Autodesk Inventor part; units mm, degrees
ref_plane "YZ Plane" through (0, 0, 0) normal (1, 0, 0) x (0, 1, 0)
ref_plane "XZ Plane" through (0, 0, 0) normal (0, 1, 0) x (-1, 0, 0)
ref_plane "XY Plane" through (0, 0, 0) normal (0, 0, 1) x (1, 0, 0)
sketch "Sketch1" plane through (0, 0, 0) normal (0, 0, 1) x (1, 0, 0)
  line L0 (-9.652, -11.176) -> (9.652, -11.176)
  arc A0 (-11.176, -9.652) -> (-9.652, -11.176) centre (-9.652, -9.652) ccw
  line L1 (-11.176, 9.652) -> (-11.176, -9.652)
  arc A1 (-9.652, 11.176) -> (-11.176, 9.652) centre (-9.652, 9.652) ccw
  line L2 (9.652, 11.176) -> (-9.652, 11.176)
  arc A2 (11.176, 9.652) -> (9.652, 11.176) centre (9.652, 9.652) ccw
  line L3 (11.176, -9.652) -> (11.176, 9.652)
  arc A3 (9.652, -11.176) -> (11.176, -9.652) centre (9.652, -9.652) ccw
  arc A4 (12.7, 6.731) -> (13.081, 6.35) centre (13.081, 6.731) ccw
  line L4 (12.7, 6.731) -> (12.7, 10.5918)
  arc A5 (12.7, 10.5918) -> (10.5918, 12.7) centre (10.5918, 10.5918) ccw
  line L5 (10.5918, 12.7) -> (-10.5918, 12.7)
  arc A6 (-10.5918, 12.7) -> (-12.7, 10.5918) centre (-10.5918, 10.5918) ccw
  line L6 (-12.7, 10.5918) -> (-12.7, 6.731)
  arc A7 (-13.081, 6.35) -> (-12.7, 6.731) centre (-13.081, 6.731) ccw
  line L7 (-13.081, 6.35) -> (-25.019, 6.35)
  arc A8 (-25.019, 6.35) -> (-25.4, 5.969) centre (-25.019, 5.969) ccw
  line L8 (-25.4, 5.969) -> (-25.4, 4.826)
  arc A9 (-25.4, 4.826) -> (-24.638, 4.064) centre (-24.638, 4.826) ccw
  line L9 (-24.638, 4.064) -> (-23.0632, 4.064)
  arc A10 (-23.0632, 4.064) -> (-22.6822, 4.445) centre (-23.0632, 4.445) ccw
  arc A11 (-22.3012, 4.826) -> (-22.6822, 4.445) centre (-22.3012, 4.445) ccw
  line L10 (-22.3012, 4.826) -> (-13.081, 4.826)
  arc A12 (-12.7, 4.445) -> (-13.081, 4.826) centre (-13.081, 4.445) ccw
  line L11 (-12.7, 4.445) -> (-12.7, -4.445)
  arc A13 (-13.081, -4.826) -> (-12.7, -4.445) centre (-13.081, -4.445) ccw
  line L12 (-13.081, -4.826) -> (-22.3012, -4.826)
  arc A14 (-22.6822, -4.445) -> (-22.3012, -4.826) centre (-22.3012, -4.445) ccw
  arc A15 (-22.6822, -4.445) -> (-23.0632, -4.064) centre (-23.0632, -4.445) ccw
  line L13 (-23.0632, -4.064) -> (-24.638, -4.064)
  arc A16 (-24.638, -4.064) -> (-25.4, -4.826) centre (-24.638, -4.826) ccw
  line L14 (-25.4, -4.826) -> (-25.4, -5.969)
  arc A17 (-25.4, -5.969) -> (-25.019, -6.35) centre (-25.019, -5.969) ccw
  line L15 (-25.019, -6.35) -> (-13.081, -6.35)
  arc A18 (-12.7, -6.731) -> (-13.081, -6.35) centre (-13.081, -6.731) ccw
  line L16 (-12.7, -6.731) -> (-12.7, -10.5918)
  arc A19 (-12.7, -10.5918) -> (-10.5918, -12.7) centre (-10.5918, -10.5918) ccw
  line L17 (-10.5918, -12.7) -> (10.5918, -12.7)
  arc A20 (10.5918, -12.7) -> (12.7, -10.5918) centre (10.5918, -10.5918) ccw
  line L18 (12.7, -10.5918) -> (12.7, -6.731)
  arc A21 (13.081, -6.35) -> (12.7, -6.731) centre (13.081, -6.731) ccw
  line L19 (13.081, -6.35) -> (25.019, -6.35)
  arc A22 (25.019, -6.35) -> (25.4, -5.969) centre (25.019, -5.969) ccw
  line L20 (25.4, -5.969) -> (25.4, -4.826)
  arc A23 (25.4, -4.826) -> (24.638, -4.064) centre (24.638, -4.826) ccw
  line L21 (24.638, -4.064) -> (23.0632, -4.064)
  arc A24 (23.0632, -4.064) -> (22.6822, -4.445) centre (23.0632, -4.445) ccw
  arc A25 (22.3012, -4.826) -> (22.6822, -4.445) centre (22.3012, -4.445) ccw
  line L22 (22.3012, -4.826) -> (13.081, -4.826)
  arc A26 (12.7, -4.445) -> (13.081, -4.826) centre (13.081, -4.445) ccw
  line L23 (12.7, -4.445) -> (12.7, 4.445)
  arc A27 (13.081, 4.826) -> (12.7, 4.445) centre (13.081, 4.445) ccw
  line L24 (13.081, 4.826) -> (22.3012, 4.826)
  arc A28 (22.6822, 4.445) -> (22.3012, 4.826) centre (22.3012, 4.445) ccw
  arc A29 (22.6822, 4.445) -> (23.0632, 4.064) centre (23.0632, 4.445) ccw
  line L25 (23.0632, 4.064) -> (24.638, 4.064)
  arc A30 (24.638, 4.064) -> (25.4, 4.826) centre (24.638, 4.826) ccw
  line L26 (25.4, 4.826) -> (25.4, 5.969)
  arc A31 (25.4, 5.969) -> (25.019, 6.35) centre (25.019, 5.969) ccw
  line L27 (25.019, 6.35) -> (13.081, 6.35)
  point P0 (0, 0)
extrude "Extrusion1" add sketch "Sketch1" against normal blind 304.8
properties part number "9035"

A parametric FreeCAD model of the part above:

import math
import FreeCAD as App
import Part
import Sketcher

V = App.Vector
Q = App.Units.Quantity

doc = App.newDocument("Part")
body = doc.addObject("PartDesign::Body", "Body")

sketch1 = body.newObject("Sketcher::SketchObject", "Sketch")
sketch1.AttachmentSupport = (doc.getObject("XY_Plane"), [""])
sketch1.MapMode = "FlatFace"
sketch1.addGeometry(Part.ArcOfCircle(Part.Circle(V(13.08, 6.73, 0), V(0, 0, 1), 0.38), math.radians(180), math.radians(270)), False)
sketch1.addGeometry(Part.LineSegment(V(12.7, 6.73, 0), V(12.7, 10.59, 0)), False)
sketch1.addGeometry(Part.ArcOfCircle(Part.Circle(V(10.59, 10.59, 0), V(0, 0, 1), 2.11), math.radians(0), math.radians(90)), False)
sketch1.addGeometry(Part.LineSegment(V(10.59, 12.7, 0), V(-10.59, 12.7, 0)), False)
sketch1.addGeometry(Part.ArcOfCircle(Part.Circle(V(-10.59, 10.59, 0), V(0, 0, 1), 2.11), math.radians(90), math.radians(180)), False)
sketch1.addGeometry(Part.LineSegment(V(-12.7, 10.59, 0), V(-12.7, 6.73, 0)), False)
sketch1.addGeometry(Part.ArcOfCircle(Part.Circle(V(-13.08, 6.73, 0), V(0, 0, 1), 0.38), math.radians(-90), math.radians(0)), False)
sketch1.addGeometry(Part.LineSegment(V(-13.08, 6.35, 0), V(-25.02, 6.35, 0)), False)
sketch1.addGeometry(Part.ArcOfCircle(Part.Circle(V(-25.02, 5.97, 0), V(0, 0, 1), 0.38), math.radians(90), math.radians(180)), False)
sketch1.addGeometry(Part.LineSegment(V(-25.4, 5.97, 0), V(-25.4, 4.83, 0)), False)
sketch1.addGeometry(Part.ArcOfCircle(Part.Circle(V(-24.64, 4.83, 0), V(0, 0, 1), 0.76), math.radians(180), math.radians(270)), False)
sketch1.addGeometry(Part.LineSegment(V(-24.64, 4.06, 0), V(-23.06, 4.06, 0)), False)
sketch1.addGeometry(Part.ArcOfCircle(Part.Circle(V(-23.06, 4.45, 0), V(0, 0, 1), 0.38), math.radians(-90), math.radians(0)), False)
sketch1.addGeometry(Part.ArcOfCircle(Part.Circle(V(-22.3, 4.45, 0), V(0, 0, 1), 0.38), math.radians(90), math.radians(180)), False)
sketch1.addGeometry(Part.LineSegment(V(-22.3, 4.83, 0), V(-13.08, 4.83, 0)), False)
sketch1.addGeometry(Part.ArcOfCircle(Part.Circle(V(-13.08, 4.45, 0), V(0, 0, 1), 0.38), math.radians(0), math.radians(90)), False)
sketch1.addGeometry(Part.LineSegment(V(-12.7, 4.45, 0), V(-12.7, -4.45, 0)), False)
sketch1.addGeometry(Part.ArcOfCircle(Part.Circle(V(-13.08, -4.45, 0), V(0, 0, 1), 0.38), math.radians(-90), math.radians(0)), False)
sketch1.addGeometry(Part.LineSegment(V(-13.08, -4.83, 0), V(-22.3, -4.83, 0)), False)
sketch1.addGeometry(Part.ArcOfCircle(Part.Circle(V(-22.3, -4.45, 0), V(0, 0, 1), 0.38), math.radians(180), math.radians(270)), False)
sketch1.addGeometry(Part.ArcOfCircle(Part.Circle(V(-23.06, -4.45, 0), V(0, 0, 1), 0.38), math.radians(0), math.radians(90)), False)
sketch1.addGeometry(Part.LineSegment(V(-23.06, -4.06, 0), V(-24.64, -4.06, 0)), False)
sketch1.addGeometry(Part.ArcOfCircle(Part.Circle(V(-24.64, -4.83, 0), V(0, 0, 1), 0.76), math.radians(90), math.radians(180)), False)
sketch1.addGeometry(Part.LineSegment(V(-25.4, -4.83, 0), V(-25.4, -5.97, 0)), False)
sketch1.addGeometry(Part.ArcOfCircle(Part.Circle(V(-25.02, -5.97, 0), V(0, 0, 1), 0.38), math.radians(180), math.radians(270)), False)
sketch1.addGeometry(Part.LineSegment(V(-25.02, -6.35, 0), V(-13.08, -6.35, 0)), False)
sketch1.addGeometry(Part.ArcOfCircle(Part.Circle(V(-13.08, -6.73, 0), V(0, 0, 1), 0.38), math.radians(0), math.radians(90)), False)
sketch1.addGeometry(Part.LineSegment(V(-12.7, -6.73, 0), V(-12.7, -10.59, 0)), False)
sketch1.addGeometry(Part.ArcOfCircle(Part.Circle(V(-10.59, -10.59, 0), V(0, 0, 1), 2.11), math.radians(180), math.radians(270)), False)
sketch1.addGeometry(Part.LineSegment(V(-10.59, -12.7, 0), V(10.59, -12.7, 0)), False)
sketch1.addGeometry(Part.ArcOfCircle(Part.Circle(V(10.59, -10.59, 0), V(0, 0, 1), 2.11), math.radians(-90), math.radians(0)), False)
sketch1.addGeometry(Part.LineSegment(V(12.7, -10.59, 0), V(12.7, -6.73, 0)), False)
sketch1.addGeometry(Part.ArcOfCircle(Part.Circle(V(13.08, -6.73, 0), V(0, 0, 1), 0.38), math.radians(90), math.radians(180)), False)
sketch1.addGeometry(Part.LineSegment(V(13.08, -6.35, 0), V(25.02, -6.35, 0)), False)
sketch1.addGeometry(Part.ArcOfCircle(Part.Circle(V(25.02, -5.97, 0), V(0, 0, 1), 0.38), math.radians(-90), math.radians(0)), False)
sketch1.addGeometry(Part.LineSegment(V(25.4, -5.97, 0), V(25.4, -4.83, 0)), False)
sketch1.addGeometry(Part.ArcOfCircle(Part.Circle(V(24.64, -4.83, 0), V(0, 0, 1), 0.76), math.radians(0), math.radians(90)), False)
sketch1.addGeometry(Part.LineSegment(V(24.64, -4.06, 0), V(23.06, -4.06, 0)), False)
sketch1.addGeometry(Part.ArcOfCircle(Part.Circle(V(23.06, -4.45, 0), V(0, 0, 1), 0.38), math.radians(90), math.radians(180)), False)
sketch1.addGeometry(Part.ArcOfCircle(Part.Circle(V(22.3, -4.45, 0), V(0, 0, 1), 0.38), math.radians(-90), math.radians(0)), False)
sketch1.addGeometry(Part.LineSegment(V(22.3, -4.83, 0), V(13.08, -4.83, 0)), False)
sketch1.addGeometry(Part.ArcOfCircle(Part.Circle(V(13.08, -4.45, 0), V(0, 0, 1), 0.38), math.radians(180), math.radians(270)), False)
sketch1.addGeometry(Part.LineSegment(V(12.7, -4.45, 0), V(12.7, 4.45, 0)), False)
sketch1.addGeometry(Part.ArcOfCircle(Part.Circle(V(13.08, 4.45, 0), V(0, 0, 1), 0.38), math.radians(90), math.radians(180)), False)
sketch1.addGeometry(Part.LineSegment(V(13.08, 4.83, 0), V(22.3, 4.83, 0)), False)
sketch1.addGeometry(Part.ArcOfCircle(Part.Circle(V(22.3, 4.45, 0), V(0, 0, 1), 0.38), math.radians(0), math.radians(90)), False)
sketch1.addGeometry(Part.ArcOfCircle(Part.Circle(V(23.06, 4.45, 0), V(0, 0, 1), 0.38), math.radians(180), math.radians(270)), False)
sketch1.addGeometry(Part.LineSegment(V(23.06, 4.06, 0), V(24.64, 4.06, 0)), False)
sketch1.addGeometry(Part.ArcOfCircle(Part.Circle(V(24.64, 4.83, 0), V(0, 0, 1), 0.76), math.radians(-90), math.radians(0)), False)
sketch1.addGeometry(Part.LineSegment(V(25.4, 4.83, 0), V(25.4, 5.97, 0)), False)
sketch1.addGeometry(Part.ArcOfCircle(Part.Circle(V(25.02, 5.97, 0), V(0, 0, 1), 0.38), math.radians(0), math.radians(90)), False)
sketch1.addGeometry(Part.LineSegment(V(25.02, 6.35, 0), V(13.08, 6.35, 0)), False)
sketch1.addGeometry(Part.LineSegment(V(9.65, -11.18, 0), V(-9.65, -11.18, 0)), False)
sketch1.addGeometry(Part.ArcOfCircle(Part.Circle(V(-9.65, -9.65, 0), V(0, 0, 1), 1.52), math.radians(180), math.radians(270)), False)
sketch1.addGeometry(Part.LineSegment(V(-11.18, -9.65, 0), V(-11.18, 9.65, 0)), False)
sketch1.addGeometry(Part.ArcOfCircle(Part.Circle(V(-9.65, 9.65, 0), V(0, 0, 1), 1.52), math.radians(90), math.radians(180)), False)
sketch1.addGeometry(Part.LineSegment(V(-9.65, 11.18, 0), V(9.65, 11.18, 0)), False)
sketch1.addGeometry(Part.ArcOfCircle(Part.Circle(V(9.65, 9.65, 0), V(0, 0, 1), 1.52), math.radians(0), math.radians(90)), False)
sketch1.addGeometry(Part.LineSegment(V(11.18, 9.65, 0), V(11.18, -9.65, 0)), False)
sketch1.addGeometry(Part.ArcOfCircle(Part.Circle(V(9.65, -9.65, 0), V(0, 0, 1), 1.52), math.radians(-90), math.radians(0)), False)
sketch1.addConstraint(Sketcher.Constraint("Tangent", 0, 1, 1, 1))
sketch1.addConstraint(Sketcher.Constraint("Tangent", 1, 2, 2, 1))
sketch1.addConstraint(Sketcher.Constraint("Tangent", 2, 2, 3, 1))
sketch1.addConstraint(Sketcher.Constraint("Tangent", 3, 2, 4, 1))
sketch1.addConstraint(Sketcher.Constraint("Tangent", 4, 2, 5, 1))
sketch1.addConstraint(Sketcher.Constraint("Tangent", 5, 2, 6, 2))
sketch1.addConstraint(Sketcher.Constraint("Tangent", 6, 1, 7, 1))
sketch1.addConstraint(Sketcher.Constraint("Tangent", 7, 2, 8, 1))
sketch1.addConstraint(Sketcher.Constraint("Tangent", 8, 2, 9, 1))
sketch1.addConstraint(Sketcher.Constraint("Tangent", 9, 2, 10, 1))
sketch1.addConstraint(Sketcher.Constraint("Tangent", 10, 2, 11, 1))
sketch1.addConstraint(Sketcher.Constraint("Tangent", 11, 2, 12, 1))
sketch1.addConstraint(Sketcher.Constraint("Tangent", 12, 2, 13, 2))
sketch1.addConstraint(Sketcher.Constraint("Tangent", 13, 1, 14, 1))
sketch1.addConstraint(Sketcher.Constraint("Tangent", 14, 2, 15, 2))
sketch1.addConstraint(Sketcher.Constraint("Tangent", 15, 1, 16, 1))
sketch1.addConstraint(Sketcher.Constraint("Tangent", 16, 2, 17, 2))
sketch1.addConstraint(Sketcher.Constraint("Tangent", 17, 1, 18, 1))
sketch1.addConstraint(Sketcher.Constraint("Tangent", 18, 2, 19, 2))
sketch1.addConstraint(Sketcher.Constraint("Tangent", 19, 1, 20, 1))
sketch1.addConstraint(Sketcher.Constraint("Tangent", 20, 2, 21, 1))
sketch1.addConstraint(Sketcher.Constraint("Tangent", 21, 2, 22, 1))
sketch1.addConstraint(Sketcher.Constraint("Tangent", 22, 2, 23, 1))
sketch1.addConstraint(Sketcher.Constraint("Tangent", 23, 2, 24, 1))
sketch1.addConstraint(Sketcher.Constraint("Tangent", 24, 2, 25, 1))
sketch1.addConstraint(Sketcher.Constraint("Tangent", 25, 2, 26, 2))
sketch1.addConstraint(Sketcher.Constraint("Tangent", 26, 1, 27, 1))
sketch1.addConstraint(Sketcher.Constraint("Tangent", 27, 2, 28, 1))
sketch1.addConstraint(Sketcher.Constraint("Tangent", 28, 2, 29, 1))
sketch1.addConstraint(Sketcher.Constraint("Tangent", 29, 2, 30, 1))
sketch1.addConstraint(Sketcher.Constraint("Tangent", 30, 2, 31, 1))
sketch1.addConstraint(Sketcher.Constraint("Tangent", 31, 2, 32, 2))
sketch1.addConstraint(Sketcher.Constraint("Tangent", 32, 1, 33, 1))
sketch1.addConstraint(Sketcher.Constraint("Tangent", 33, 2, 34, 1))
sketch1.addConstraint(Sketcher.Constraint("Tangent", 34, 2, 35, 1))
sketch1.addConstraint(Sketcher.Constraint("Tangent", 35, 2, 36, 1))
sketch1.addConstraint(Sketcher.Constraint("Tangent", 36, 2, 37, 1))
sketch1.addConstraint(Sketcher.Constraint("Tangent", 37, 2, 38, 1))
sketch1.addConstraint(Sketcher.Constraint("Tangent", 38, 2, 39, 2))
sketch1.addConstraint(Sketcher.Constraint("Tangent", 39, 1, 40, 1))
sketch1.addConstraint(Sketcher.Constraint("Tangent", 40, 2, 41, 2))
sketch1.addConstraint(Sketcher.Constraint("Tangent", 41, 1, 42, 1))
sketch1.addConstraint(Sketcher.Constraint("Tangent", 42, 2, 43, 2))
sketch1.addConstraint(Sketcher.Constraint("Tangent", 43, 1, 44, 1))
sketch1.addConstraint(Sketcher.Constraint("Tangent", 44, 2, 45, 2))
sketch1.addConstraint(Sketcher.Constraint("Tangent", 45, 1, 46, 1))
sketch1.addConstraint(Sketcher.Constraint("Tangent", 46, 2, 47, 1))
sketch1.addConstraint(Sketcher.Constraint("Tangent", 47, 2, 48, 1))
sketch1.addConstraint(Sketcher.Constraint("Tangent", 48, 2, 49, 1))
sketch1.addConstraint(Sketcher.Constraint("Tangent", 49, 2, 50, 1))
sketch1.addConstraint(Sketcher.Constraint("Tangent", 50, 2, 51, 1))
sketch1.addConstraint(Sketcher.Constraint("Tangent", 51, 2, 0, 2))
sketch1.addConstraint(Sketcher.Constraint("Tangent", 52, 2, 53, 2))
sketch1.addConstraint(Sketcher.Constraint("Tangent", 53, 1, 54, 1))
sketch1.addConstraint(Sketcher.Constraint("Tangent", 54, 2, 55, 2))
sketch1.addConstraint(Sketcher.Constraint("Tangent", 55, 1, 56, 1))
sketch1.addConstraint(Sketcher.Constraint("Tangent", 56, 2, 57, 2))
sketch1.addConstraint(Sketcher.Constraint("Tangent", 57, 1, 58, 1))
sketch1.addConstraint(Sketcher.Constraint("Tangent", 58, 2, 59, 2))
sketch1.addConstraint(Sketcher.Constraint("Tangent", 59, 1, 52, 1))
sketch1.addConstraint(Sketcher.Constraint("Vertical", 1))
sketch1.addConstraint(Sketcher.Constraint("Horizontal", 3))
sketch1.addConstraint(Sketcher.Constraint("Vertical", 5))
sketch1.addConstraint(Sketcher.Constraint("Horizontal", 7))
sketch1.addConstraint(Sketcher.Constraint("Vertical", 9))
sketch1.addConstraint(Sketcher.Constraint("Horizontal", 11))
sketch1.addConstraint(Sketcher.Constraint("Horizontal", 14))
sketch1.addConstraint(Sketcher.Constraint("Vertical", 16))
sketch1.addConstraint(Sketcher.Constraint("Horizontal", 18))
sketch1.addConstraint(Sketcher.Constraint("Horizontal", 21))
sketch1.addConstraint(Sketcher.Constraint("Vertical", 23))
sketch1.addConstraint(Sketcher.Constraint("Horizontal", 25))
sketch1.addConstraint(Sketcher.Constraint("Vertical", 27))
sketch1.addConstraint(Sketcher.Constraint("Horizontal", 29))
sketch1.addConstraint(Sketcher.Constraint("Vertical", 31))
sketch1.addConstraint(Sketcher.Constraint("Horizontal", 33))
sketch1.addConstraint(Sketcher.Constraint("Vertical", 35))
sketch1.addConstraint(Sketcher.Constraint("Horizontal", 37))
sketch1.addConstraint(Sketcher.Constraint("Horizontal", 40))
sketch1.addConstraint(Sketcher.Constraint("Vertical", 42))
sketch1.addConstraint(Sketcher.Constraint("Horizontal", 44))
sketch1.addConstraint(Sketcher.Constraint("Horizontal", 47))
sketch1.addConstraint(Sketcher.Constraint("Vertical", 49))
sketch1.addConstraint(Sketcher.Constraint("Horizontal", 51))
sketch1.addConstraint(Sketcher.Constraint("Horizontal", 52))
sketch1.addConstraint(Sketcher.Constraint("Vertical", 54))
sketch1.addConstraint(Sketcher.Constraint("Horizontal", 56))
sketch1.addConstraint(Sketcher.Constraint("Vertical", 58))
sketch1.addConstraint(Sketcher.Constraint("Equal", 2, 4))
sketch1.addConstraint(Sketcher.Constraint("Equal", 0, 6))
sketch1.addConstraint(Sketcher.Constraint("Equal", 6, 8))
sketch1.addConstraint(Sketcher.Constraint("Equal", 8, 12))
sketch1.addConstraint(Sketcher.Constraint("Equal", 12, 13))
sketch1.addConstraint(Sketcher.Constraint("Equal", 13, 15))
sketch1.addConstraint(Sketcher.Constraint("Equal", 15, 17))
sketch1.addConstraint(Sketcher.Constraint("Equal", 17, 19))
sketch1.addConstraint(Sketcher.Constraint("Equal", 19, 20))
sketch1.addConstraint(Sketcher.Constraint("Equal", 10, 22))
sketch1.addConstraint(Sketcher.Constraint("Equal", 20, 24))
sketch1.addConstraint(Sketcher.Constraint("Equal", 24, 26))
sketch1.addConstraint(Sketcher.Constraint("Equal", 4, 28))
sketch1.addConstraint(Sketcher.Constraint("Equal", 28, 30))
sketch1.addConstraint(Sketcher.Constraint("Equal", 26, 32))
sketch1.addConstraint(Sketcher.Constraint("Equal", 32, 34))
sketch1.addConstraint(Sketcher.Constraint("Equal", 22, 36))
sketch1.addConstraint(Sketcher.Constraint("Equal", 34, 38))
sketch1.addConstraint(Sketcher.Constraint("Equal", 38, 39))
sketch1.addConstraint(Sketcher.Constraint("Equal", 39, 41))
sketch1.addConstraint(Sketcher.Constraint("Equal", 41, 43))
sketch1.addConstraint(Sketcher.Constraint("Equal", 43, 45))
sketch1.addConstraint(Sketcher.Constraint("Equal", 45, 46))
sketch1.addConstraint(Sketcher.Constraint("Equal", 36, 48))
sketch1.addConstraint(Sketcher.Constraint("Equal", 46, 50))
sketch1.addConstraint(Sketcher.Constraint("Equal", 53, 55))
sketch1.addConstraint(Sketcher.Constraint("Equal", 55, 57))
sketch1.addConstraint(Sketcher.Constraint("Equal", 57, 59))
sketch1.addConstraint(Sketcher.Constraint("Symmetric", 0, 3, 26, 3, -1, 1))
sketch1.addConstraint(Sketcher.Constraint("Symmetric", 4, 3, 30, 3, -1, 1))
sketch1.addConstraint(Sketcher.Constraint("Symmetric", 8, 3, 34, 3, -1, 1))
sketch1.addConstraint(Sketcher.Constraint("Symmetric", 12, 3, 38, 3, -1, 1))
sketch1.addConstraint(Sketcher.Constraint("Symmetric", 15, 3, 41, 3, -1, 1))
sketch1.addConstraint(Sketcher.Constraint("Symmetric", 19, 3, 45, 3, -1, 1))
sketch1.addConstraint(Sketcher.Constraint("Symmetric", 22, 3, 48, 3, -1, 1))
sketch1.addConstraint(Sketcher.Constraint("Symmetric", 53, 3, 57, 3, -1, 1))
sketch1.addConstraint(Sketcher.Constraint("Symmetric", 0, 3, 6, 3, -2))
sketch1.addConstraint(Sketcher.Constraint("Symmetric", 22, 3, 36, 3, -2))
sketch1.addConstraint(Sketcher.Constraint("Symmetric", 19, 3, 39, 3, -2))
sketch1.addConstraint(Sketcher.Constraint("Horizontal", 12, 3, 13, 3))
sketch1.addConstraint(Sketcher.Constraint("Horizontal", 9, 2, 13, 1))
sketch1.addConstraint(Sketcher.Constraint("Vertical", 6, 3, 15, 3))
sketch1.addConstraint(Sketcher.Constraint("Equal", 56, 54))
sketch1.addConstraint(Sketcher.Constraint("Radius", 10, Q("0.03 in")))
sketch1.addConstraint(Sketcher.Constraint("Radius", 53, Q("0.06 in")))
sketch1.addConstraint(Sketcher.Constraint("DistanceX", 8, 2, -1, 1, Q("1 in")))
sketch1.addConstraint(Sketcher.Constraint("Radius", 2, Q("0.083 in")))
sketch1.addConstraint(Sketcher.Constraint("DistanceX", 7, 2, 7, 1, Q("0.47 in")))
sketch1.addConstraint(Sketcher.Constraint("DistanceX", 52, 2, 52, 1, Q("0.76 in")))
sketch1.addConstraint(Sketcher.Constraint("DistanceY", 16, 2, 16, 1, Q("0.35 in")))
sketch1.addConstraint(Sketcher.Constraint("DistanceY", -1, 1, 2, 2, Q("0.5 in")))
sketch1.addConstraint(Sketcher.Constraint("DistanceX", 11, 1, 11, 2, Q("0.062 in")))
sketch1.addConstraint(Sketcher.Constraint("DistanceY", 1, 1, 1, 2, Q("0.152 in")))
pad1 = body.newObject("PartDesign::Pad", "Pad")
pad1.Profile = sketch1
pad1.Length = Q("12 in")
pad1.Reversed = True

doc.recompute()
